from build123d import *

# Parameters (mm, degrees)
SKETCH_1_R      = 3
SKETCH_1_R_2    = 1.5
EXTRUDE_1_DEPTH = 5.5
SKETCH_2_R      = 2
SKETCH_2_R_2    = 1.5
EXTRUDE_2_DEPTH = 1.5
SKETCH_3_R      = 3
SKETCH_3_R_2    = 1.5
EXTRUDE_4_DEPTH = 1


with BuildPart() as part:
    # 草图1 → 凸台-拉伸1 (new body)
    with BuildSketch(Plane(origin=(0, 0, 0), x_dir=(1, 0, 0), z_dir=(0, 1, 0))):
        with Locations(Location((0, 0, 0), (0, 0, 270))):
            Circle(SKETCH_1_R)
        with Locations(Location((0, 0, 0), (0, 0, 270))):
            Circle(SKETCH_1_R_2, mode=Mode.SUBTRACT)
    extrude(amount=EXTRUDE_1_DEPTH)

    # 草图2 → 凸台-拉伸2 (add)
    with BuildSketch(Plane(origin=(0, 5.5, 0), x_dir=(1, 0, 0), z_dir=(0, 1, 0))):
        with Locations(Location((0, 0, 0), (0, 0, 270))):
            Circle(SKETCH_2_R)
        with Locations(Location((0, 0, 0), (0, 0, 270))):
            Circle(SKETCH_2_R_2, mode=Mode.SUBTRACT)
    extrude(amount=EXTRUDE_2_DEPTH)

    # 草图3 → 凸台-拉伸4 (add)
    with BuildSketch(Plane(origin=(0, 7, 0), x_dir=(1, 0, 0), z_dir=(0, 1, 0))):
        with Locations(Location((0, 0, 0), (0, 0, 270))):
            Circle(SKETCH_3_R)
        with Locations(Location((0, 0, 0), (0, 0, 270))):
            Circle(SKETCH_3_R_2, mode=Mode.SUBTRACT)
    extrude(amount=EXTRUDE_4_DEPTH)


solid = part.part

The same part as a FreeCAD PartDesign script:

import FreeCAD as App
import Part
import Sketcher

V = App.Vector
Q = App.Units.Quantity

doc = App.newDocument("Part")
params = doc.addObject("Spreadsheet::Sheet", "Params")
for row, (alias, value) in enumerate([
    ("sketch1_diameter", "6 mm"),
    ("sketch1_diameter2", "3 mm"),
    ("pad1_length", "5.5 mm"),
    ("sketch2_diameter", "4 mm"),
    ("sketch2_diameter2", "3 mm"),
    ("pad2_length", "1.5 mm"),
    ("sketch3_diameter", "6 mm"),
    ("sketch3_diameter2", "3 mm"),
    ("pad3_length", "1 mm"),
], start=1):
    params.set(f"A{row}", alias)
    params.set(f"B{row}", "=" + value)
    params.setAlias(f"B{row}", alias)

body = doc.addObject("PartDesign::Body", "Body")

sketch1 = body.newObject("Sketcher::SketchObject", "Sketch")
sketch1.AttachmentSupport = (doc.getObject("XZ_Plane"), [""])
sketch1.MapMode = "FlatFace"
sketch1.addGeometry(Part.Circle(V(0, 0, 0), V(0, 0, 1), 3), False)
sketch1.addGeometry(Part.Circle(V(0, 0, 0), V(0, 0, 1), 1.5), False)
sketch1.addConstraint(Sketcher.Constraint("Coincident", 0, 3, -1, 1))
sketch1.addConstraint(Sketcher.Constraint("Coincident", 1, 3, -1, 1))
sketch1.addConstraint(Sketcher.Constraint("Diameter", 0, Q("6 mm")))
sketch1.addConstraint(Sketcher.Constraint("Diameter", 1, Q("3 mm")))
sketch1.setExpression("Constraints[2]", "Params.sketch1_diameter")
sketch1.setExpression("Constraints[3]", "Params.sketch1_diameter2")
pad1 = body.newObject("PartDesign::Pad", "Pad")
pad1.Profile = sketch1
pad1.setExpression("Length", "Params.pad1_length")
pad1.Reversed = True

sketch2 = body.newObject("Sketcher::SketchObject", "Sketch001")
sketch2.AttachmentSupport = (doc.getObject("XZ_Plane"), [""])
sketch2.MapMode = "FlatFace"
sketch2.AttachmentOffset = App.Placement(V(0, 0, -5.5), App.Rotation())
sketch2.addGeometry(Part.Circle(V(0, 0, 0), V(0, 0, 1), 2), False)
sketch2.addGeometry(Part.Circle(V(0, 0, 0), V(0, 0, 1), 1.5), False)
sketch2.addConstraint(Sketcher.Constraint("Coincident", 0, 3, -1, 1))
sketch2.addConstraint(Sketcher.Constraint("Coincident", 1, 3, -1, 1))
sketch2.addConstraint(Sketcher.Constraint("Diameter", 0, Q("4 mm")))
sketch2.addConstraint(Sketcher.Constraint("Diameter", 1, Q("3 mm")))
sketch2.setExpression("Constraints[2]", "Params.sketch2_diameter")
sketch2.setExpression("Constraints[3]", "Params.sketch2_diameter2")
pad2 = body.newObject("PartDesign::Pad", "Pad001")
pad2.Profile = sketch2
pad2.setExpression("Length", "Params.pad2_length")
pad2.Reversed = True

sketch3 = body.newObject("Sketcher::SketchObject", "Sketch002")
sketch3.AttachmentSupport = (doc.getObject("XZ_Plane"), [""])
sketch3.MapMode = "FlatFace"
sketch3.AttachmentOffset = App.Placement(V(0, 0, -7), App.Rotation())
sketch3.addGeometry(Part.Circle(V(0, 0, 0), V(0, 0, 1), 3), False)
sketch3.addGeometry(Part.Circle(V(0, 0, 0), V(0, 0, 1), 1.5), False)
sketch3.addConstraint(Sketcher.Constraint("Coincident", 0, 3, -1, 1))
sketch3.addConstraint(Sketcher.Constraint("Coincident", 1, 3, -1, 1))
sketch3.addConstraint(Sketcher.Constraint("Diameter", 0, Q("6 mm")))
sketch3.addConstraint(Sketcher.Constraint("Diameter", 1, Q("3 mm")))
sketch3.setExpression("Constraints[2]", "Params.sketch3_diameter")
sketch3.setExpression("Constraints[3]", "Params.sketch3_diameter2")
pad3 = body.newObject("PartDesign::Pad", "Pad002")
pad3.Profile = sketch3
pad3.setExpression("Length", "Params.pad3_length")
pad3.Reversed = True

doc.recompute()
